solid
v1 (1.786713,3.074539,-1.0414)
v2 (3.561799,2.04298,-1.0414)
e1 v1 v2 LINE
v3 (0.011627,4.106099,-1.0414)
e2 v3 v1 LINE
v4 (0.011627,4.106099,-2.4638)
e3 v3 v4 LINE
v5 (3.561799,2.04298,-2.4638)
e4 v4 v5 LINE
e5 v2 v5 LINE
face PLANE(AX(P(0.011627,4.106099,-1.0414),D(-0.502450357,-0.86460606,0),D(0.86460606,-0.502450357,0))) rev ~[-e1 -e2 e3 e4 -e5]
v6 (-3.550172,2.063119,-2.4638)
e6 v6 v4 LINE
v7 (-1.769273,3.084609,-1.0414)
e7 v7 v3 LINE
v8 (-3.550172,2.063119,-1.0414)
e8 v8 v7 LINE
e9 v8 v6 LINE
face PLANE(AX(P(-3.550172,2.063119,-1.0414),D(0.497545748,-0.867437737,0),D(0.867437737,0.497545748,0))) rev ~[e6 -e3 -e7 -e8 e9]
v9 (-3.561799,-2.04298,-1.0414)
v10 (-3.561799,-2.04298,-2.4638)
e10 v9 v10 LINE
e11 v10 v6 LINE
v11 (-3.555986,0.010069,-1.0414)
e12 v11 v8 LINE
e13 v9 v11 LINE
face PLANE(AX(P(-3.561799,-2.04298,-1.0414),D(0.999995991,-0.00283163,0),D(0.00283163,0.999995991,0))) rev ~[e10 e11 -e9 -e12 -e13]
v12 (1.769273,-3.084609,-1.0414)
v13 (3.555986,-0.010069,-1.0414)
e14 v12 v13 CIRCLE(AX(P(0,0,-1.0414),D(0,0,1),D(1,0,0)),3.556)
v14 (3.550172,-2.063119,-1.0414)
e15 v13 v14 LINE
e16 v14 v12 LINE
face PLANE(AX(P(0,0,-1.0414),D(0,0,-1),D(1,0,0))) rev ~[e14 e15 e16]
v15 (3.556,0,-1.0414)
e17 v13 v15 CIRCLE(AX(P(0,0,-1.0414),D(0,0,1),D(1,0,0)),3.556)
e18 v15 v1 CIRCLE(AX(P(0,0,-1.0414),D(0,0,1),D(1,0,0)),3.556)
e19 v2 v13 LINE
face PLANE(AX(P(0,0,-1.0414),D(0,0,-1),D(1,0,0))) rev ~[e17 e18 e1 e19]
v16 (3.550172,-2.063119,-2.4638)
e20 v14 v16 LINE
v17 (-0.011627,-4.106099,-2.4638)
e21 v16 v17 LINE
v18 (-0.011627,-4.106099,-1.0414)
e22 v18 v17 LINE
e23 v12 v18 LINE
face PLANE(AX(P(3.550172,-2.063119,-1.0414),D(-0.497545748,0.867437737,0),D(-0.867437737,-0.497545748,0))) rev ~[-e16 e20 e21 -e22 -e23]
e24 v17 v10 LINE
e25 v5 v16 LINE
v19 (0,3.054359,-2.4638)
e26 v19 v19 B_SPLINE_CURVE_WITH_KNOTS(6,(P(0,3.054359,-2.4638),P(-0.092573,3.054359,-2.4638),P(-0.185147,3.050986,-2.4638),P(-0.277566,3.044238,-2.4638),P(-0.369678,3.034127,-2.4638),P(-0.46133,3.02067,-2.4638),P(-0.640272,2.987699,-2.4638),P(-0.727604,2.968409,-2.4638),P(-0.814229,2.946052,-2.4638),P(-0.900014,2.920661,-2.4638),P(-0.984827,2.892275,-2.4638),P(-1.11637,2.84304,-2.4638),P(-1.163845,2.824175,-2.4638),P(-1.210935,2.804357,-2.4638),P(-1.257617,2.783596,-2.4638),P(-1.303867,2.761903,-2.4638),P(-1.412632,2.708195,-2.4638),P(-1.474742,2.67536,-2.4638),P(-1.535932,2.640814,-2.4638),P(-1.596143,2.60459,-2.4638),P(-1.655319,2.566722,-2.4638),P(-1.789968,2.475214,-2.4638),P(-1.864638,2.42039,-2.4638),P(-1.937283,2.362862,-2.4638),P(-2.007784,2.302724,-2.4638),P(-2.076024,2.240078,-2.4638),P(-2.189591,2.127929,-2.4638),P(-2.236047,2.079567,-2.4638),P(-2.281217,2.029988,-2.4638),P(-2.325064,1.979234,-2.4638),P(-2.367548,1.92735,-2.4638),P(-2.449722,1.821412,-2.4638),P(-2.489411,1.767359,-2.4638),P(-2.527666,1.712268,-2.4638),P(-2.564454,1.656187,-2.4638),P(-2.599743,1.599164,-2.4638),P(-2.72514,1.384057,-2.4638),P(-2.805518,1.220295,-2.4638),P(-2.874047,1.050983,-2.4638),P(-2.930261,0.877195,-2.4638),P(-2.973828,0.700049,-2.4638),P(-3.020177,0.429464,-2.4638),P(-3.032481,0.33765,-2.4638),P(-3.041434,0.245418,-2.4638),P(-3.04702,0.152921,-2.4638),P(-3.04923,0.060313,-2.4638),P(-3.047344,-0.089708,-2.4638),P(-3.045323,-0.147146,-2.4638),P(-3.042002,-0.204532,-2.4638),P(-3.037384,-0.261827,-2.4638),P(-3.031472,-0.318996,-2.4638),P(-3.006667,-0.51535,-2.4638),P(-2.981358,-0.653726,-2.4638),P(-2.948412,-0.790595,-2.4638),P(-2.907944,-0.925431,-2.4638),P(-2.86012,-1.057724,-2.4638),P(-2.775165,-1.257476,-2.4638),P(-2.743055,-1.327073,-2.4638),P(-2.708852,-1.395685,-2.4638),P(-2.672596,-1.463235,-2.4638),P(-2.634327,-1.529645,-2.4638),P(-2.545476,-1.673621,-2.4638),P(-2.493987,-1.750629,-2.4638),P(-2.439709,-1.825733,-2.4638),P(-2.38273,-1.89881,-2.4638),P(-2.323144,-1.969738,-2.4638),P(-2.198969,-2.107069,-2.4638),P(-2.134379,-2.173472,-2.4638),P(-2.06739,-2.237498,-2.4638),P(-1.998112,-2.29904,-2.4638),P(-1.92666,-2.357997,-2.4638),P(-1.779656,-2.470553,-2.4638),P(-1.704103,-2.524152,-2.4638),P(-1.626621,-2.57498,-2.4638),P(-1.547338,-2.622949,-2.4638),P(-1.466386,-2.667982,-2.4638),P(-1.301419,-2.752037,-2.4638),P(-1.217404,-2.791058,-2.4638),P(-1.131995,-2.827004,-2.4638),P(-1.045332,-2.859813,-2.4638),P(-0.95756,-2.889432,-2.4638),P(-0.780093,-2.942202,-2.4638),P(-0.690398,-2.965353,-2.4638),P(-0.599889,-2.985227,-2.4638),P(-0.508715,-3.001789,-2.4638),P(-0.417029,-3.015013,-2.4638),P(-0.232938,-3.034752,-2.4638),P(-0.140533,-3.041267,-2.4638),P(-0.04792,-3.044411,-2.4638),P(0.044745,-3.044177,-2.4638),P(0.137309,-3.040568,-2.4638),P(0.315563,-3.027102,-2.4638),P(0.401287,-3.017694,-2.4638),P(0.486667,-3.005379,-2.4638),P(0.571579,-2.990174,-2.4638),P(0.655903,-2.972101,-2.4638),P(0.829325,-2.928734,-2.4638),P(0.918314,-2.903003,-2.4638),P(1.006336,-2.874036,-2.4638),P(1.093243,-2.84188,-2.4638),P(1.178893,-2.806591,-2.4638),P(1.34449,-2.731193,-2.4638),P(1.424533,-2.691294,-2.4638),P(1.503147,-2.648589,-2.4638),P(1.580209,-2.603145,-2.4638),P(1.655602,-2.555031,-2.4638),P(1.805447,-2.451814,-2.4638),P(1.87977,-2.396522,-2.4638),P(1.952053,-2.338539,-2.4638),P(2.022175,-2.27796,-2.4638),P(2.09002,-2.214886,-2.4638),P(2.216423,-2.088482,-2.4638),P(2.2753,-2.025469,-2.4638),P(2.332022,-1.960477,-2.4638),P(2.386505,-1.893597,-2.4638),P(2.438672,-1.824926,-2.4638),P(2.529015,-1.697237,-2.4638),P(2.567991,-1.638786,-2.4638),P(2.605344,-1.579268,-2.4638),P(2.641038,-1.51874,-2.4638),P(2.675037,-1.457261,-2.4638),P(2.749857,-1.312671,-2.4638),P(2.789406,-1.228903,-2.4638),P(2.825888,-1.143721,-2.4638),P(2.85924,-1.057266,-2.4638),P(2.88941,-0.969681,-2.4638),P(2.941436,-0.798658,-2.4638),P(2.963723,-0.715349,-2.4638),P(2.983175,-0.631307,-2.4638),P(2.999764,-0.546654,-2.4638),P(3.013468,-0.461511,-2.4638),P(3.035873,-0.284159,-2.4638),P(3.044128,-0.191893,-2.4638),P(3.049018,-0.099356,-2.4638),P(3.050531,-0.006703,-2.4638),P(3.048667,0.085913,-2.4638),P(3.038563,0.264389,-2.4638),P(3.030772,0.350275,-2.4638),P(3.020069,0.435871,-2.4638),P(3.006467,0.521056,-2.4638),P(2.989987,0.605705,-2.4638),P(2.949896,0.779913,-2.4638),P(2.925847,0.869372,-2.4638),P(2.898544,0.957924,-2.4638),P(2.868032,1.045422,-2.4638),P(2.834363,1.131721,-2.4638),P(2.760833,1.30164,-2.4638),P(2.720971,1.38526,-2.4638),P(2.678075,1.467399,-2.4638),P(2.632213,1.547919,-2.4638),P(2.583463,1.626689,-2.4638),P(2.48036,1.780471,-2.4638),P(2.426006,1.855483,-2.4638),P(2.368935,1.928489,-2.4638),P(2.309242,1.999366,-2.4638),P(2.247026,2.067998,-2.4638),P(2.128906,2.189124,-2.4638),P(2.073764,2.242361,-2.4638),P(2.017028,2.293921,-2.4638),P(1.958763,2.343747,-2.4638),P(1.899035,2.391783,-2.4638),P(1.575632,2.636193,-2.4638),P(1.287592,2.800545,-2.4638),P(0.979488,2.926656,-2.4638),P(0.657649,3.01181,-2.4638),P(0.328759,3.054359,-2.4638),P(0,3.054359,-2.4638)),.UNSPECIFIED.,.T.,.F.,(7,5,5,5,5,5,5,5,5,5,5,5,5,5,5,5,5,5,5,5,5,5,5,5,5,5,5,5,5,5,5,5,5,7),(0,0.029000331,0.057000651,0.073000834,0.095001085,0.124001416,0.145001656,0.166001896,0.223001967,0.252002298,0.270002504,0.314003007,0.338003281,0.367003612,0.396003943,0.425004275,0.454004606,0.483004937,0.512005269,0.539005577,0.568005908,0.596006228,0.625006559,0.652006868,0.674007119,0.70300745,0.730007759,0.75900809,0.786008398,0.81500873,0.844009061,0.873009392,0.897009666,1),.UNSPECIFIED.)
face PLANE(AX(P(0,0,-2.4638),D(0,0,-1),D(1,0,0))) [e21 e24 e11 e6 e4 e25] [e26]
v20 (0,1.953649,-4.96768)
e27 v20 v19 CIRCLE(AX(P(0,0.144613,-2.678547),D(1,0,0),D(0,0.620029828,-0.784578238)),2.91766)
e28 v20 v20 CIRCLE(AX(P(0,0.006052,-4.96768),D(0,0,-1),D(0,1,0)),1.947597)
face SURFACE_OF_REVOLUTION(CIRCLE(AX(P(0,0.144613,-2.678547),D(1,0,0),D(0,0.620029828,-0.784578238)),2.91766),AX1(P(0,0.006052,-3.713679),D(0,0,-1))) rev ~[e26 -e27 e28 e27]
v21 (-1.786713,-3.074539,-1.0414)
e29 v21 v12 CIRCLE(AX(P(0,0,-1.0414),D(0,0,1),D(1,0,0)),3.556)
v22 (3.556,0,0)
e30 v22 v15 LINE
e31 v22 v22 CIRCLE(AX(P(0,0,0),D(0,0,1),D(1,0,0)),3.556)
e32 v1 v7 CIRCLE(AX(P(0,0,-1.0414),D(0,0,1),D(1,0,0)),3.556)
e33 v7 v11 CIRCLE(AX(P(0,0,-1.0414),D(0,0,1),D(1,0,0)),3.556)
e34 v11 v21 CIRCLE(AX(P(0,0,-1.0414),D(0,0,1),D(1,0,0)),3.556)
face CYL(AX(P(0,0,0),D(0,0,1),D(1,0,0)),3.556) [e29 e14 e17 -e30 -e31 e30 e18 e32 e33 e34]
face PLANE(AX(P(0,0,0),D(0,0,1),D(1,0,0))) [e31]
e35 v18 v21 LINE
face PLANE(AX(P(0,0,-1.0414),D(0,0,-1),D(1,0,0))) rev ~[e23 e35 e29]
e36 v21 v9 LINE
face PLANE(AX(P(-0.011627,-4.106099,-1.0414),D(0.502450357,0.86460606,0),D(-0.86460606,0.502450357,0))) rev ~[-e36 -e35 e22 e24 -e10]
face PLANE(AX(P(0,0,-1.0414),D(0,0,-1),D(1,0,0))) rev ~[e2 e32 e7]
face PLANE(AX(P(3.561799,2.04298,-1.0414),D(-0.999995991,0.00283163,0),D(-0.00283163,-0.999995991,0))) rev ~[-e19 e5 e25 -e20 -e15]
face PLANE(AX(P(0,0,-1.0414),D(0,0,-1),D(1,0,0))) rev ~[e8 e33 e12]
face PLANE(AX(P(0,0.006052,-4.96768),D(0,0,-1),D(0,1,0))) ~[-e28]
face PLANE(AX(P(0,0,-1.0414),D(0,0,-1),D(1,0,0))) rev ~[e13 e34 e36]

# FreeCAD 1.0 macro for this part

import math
import FreeCAD as App
import Part
import Sketcher
from FreeCAD import Vector
Q = App.Units.Quantity


def add_polygon(sketch, points):
    """Adds a closed chain of lines whose ends are joined by coincident constraints."""
    first, n = sketch.GeometryCount, len(points)
    for a, b in zip(points, points[1:] + points[:1]):
        sketch.addGeometry(Part.LineSegment(App.Vector(*a, 0), App.Vector(*b, 0)), False)
    for i in range(n):
        sketch.addConstraint(Sketcher.Constraint("Coincident", first + i, 2, first + (i + 1) % n, 1))

doc = App.newDocument("Part")
body = doc.addObject("PartDesign::Body", "Body")

# Sketch on XY plane
sketch1 = body.newObject("Sketcher::SketchObject", "Sketch")
sketch1.AttachmentSupport = (doc.getObject("XY_Plane"), [""])
sketch1.MapMode = "FlatFace"
sketch1.addGeometry(Part.Circle(Vector(0, 0, 0), Vector(0, 0, 1), 3.556), False)
sketch1.addConstraint(Sketcher.Constraint("Coincident", 0, 3, -1, 1))
sketch1.addConstraint(Sketcher.Constraint("Diameter", 0, Q("0.28 in")))
pad1 = body.newObject("PartDesign::Pad", "Pad")
pad1.Profile = sketch1
pad1.Length = Q("0.041 in")
pad1.Reversed = True

# Sketch on XY plane
sketch2 = body.newObject("Sketcher::SketchObject", "Sketch001")
sketch2.AttachmentSupport = (doc.getObject("XY_Plane"), [""])
sketch2.MapMode = "FlatFace"
sketch2.AttachmentOffset = App.Placement(Vector(0, 0, -0.041 * 25.4), App.Rotation())
add_polygon(sketch2, [(0.011627, 4.106099), (3.561799, 2.04298), (3.550172, -2.063119), (-0.011627, -4.106099), (-3.561799, -2.04298), (-3.550172, 2.063119)])  # lines 0-5
sketch2.addConstraint(Sketcher.Constraint("Symmetric", 0, 2, 3, 2, -1, 1))
sketch2.addConstraint(Sketcher.Constraint("Symmetric", 1, 2, 4, 2, -1, 1))
sketch2.addConstraint(Sketcher.Constraint("Symmetric", 2, 2, 5, 2, -1, 1))
sketch2.addConstraint(Sketcher.Constraint("Equal", 0, 1))
sketch2.addConstraint(Sketcher.Constraint("Equal", 1, 2))
sketch2.addConstraint(Sketcher.Constraint("DistanceX", -1, 1, 0, 2, 3.561799))
sketch2.addConstraint(Sketcher.Constraint("DistanceY", 2, 2, -1, 1, 4.106099))
sketch2.addConstraint(Sketcher.Constraint("DistanceY", 1, 2, 0, 2, 4.106099))
sketch2.addConstraint(Sketcher.Constraint("DistanceX", 2, 2, 1, 2, 3.561799))
pad2 = body.newObject("PartDesign::Pad", "Pad001")
pad2.Profile = sketch2
pad2.Length = Q("0.056 in")
pad2.Reversed = True

# Sketch on YZ plane
sketch3 = body.newObject("Sketcher::SketchObject", "Sketch002")
sketch3.AttachmentSupport = (doc.getObject("YZ_Plane"), [""])
sketch3.MapMode = "FlatFace"
sketch3.addGeometry(Part.LineSegment(Vector(0.006052, -2.459678, 0), Vector(0.006052, -4.96768, 0)), False)
sketch3.addGeometry(Part.LineSegment(Vector(0.006052, -4.96768, 0), Vector(1.953649, -4.96768, 0)), False)
sketch3.addGeometry(Part.ArcOfCircle(Part.Circle(Vector(0.144613, -2.678547, 0), Vector(0, 0, 1), 2.91766), math.radians(-51.681687), math.radians(4.302104)), False)
sketch3.addGeometry(Part.LineSegment(Vector(3.054052, -2.459678, 0), Vector(0.006052, -2.459678, 0)), False)
sketch3.addGeometry(Part.LineSegment(Vector(0.006052, -2.459678, 0), Vector(0.006052, -4.96768, 0)), True)  # axis
sketch3.addConstraint(Sketcher.Constraint("Coincident", 0, 2, 1, 1))
sketch3.addConstraint(Sketcher.Constraint("Coincident", 1, 2, 2, 1))
sketch3.addConstraint(Sketcher.Constraint("Coincident", 2, 2, 3, 1))
sketch3.addConstraint(Sketcher.Constraint("Coincident", 3, 2, 0, 1))
sketch3.addConstraint(Sketcher.Constraint("Vertical", 0))
sketch3.addConstraint(Sketcher.Constraint("Horizontal", 1))
sketch3.addConstraint(Sketcher.Constraint("Horizontal", 3))
sketch3.addConstraint(Sketcher.Constraint("Vertical", 4))
sketch3.addConstraint(Sketcher.Constraint("Coincident", 4, 1, 3, 2))
sketch3.addConstraint(Sketcher.Constraint("Horizontal", 1, 2, 4, 2))
sketch3.addConstraint(Sketcher.Constraint("DistanceX", 3, 2, 3, 1, Q("0.12 in")))
sketch3.addConstraint(Sketcher.Constraint("Radius", 2, 2.91766))
sketch3.addConstraint(Sketcher.Constraint("DistanceY", 0, 2, 0, 1, 2.508002))
sketch3.addConstraint(Sketcher.Constraint("DistanceX", 1, 1, 1, 2, 1.947597))
sketch3.addConstraint(Sketcher.Constraint("DistanceY", 0, 2, -1, 1, 4.96768))
sketch3.addConstraint(Sketcher.Constraint("DistanceX", -1, 1, 1, 2, 1.953649))
revolution = body.newObject("PartDesign::Revolution", "Revolution")
revolution.Profile = sketch3
revolution.ReferenceAxis = (sketch3, ["Axis0"])
revolution.Angle = 360

doc.recompute()
